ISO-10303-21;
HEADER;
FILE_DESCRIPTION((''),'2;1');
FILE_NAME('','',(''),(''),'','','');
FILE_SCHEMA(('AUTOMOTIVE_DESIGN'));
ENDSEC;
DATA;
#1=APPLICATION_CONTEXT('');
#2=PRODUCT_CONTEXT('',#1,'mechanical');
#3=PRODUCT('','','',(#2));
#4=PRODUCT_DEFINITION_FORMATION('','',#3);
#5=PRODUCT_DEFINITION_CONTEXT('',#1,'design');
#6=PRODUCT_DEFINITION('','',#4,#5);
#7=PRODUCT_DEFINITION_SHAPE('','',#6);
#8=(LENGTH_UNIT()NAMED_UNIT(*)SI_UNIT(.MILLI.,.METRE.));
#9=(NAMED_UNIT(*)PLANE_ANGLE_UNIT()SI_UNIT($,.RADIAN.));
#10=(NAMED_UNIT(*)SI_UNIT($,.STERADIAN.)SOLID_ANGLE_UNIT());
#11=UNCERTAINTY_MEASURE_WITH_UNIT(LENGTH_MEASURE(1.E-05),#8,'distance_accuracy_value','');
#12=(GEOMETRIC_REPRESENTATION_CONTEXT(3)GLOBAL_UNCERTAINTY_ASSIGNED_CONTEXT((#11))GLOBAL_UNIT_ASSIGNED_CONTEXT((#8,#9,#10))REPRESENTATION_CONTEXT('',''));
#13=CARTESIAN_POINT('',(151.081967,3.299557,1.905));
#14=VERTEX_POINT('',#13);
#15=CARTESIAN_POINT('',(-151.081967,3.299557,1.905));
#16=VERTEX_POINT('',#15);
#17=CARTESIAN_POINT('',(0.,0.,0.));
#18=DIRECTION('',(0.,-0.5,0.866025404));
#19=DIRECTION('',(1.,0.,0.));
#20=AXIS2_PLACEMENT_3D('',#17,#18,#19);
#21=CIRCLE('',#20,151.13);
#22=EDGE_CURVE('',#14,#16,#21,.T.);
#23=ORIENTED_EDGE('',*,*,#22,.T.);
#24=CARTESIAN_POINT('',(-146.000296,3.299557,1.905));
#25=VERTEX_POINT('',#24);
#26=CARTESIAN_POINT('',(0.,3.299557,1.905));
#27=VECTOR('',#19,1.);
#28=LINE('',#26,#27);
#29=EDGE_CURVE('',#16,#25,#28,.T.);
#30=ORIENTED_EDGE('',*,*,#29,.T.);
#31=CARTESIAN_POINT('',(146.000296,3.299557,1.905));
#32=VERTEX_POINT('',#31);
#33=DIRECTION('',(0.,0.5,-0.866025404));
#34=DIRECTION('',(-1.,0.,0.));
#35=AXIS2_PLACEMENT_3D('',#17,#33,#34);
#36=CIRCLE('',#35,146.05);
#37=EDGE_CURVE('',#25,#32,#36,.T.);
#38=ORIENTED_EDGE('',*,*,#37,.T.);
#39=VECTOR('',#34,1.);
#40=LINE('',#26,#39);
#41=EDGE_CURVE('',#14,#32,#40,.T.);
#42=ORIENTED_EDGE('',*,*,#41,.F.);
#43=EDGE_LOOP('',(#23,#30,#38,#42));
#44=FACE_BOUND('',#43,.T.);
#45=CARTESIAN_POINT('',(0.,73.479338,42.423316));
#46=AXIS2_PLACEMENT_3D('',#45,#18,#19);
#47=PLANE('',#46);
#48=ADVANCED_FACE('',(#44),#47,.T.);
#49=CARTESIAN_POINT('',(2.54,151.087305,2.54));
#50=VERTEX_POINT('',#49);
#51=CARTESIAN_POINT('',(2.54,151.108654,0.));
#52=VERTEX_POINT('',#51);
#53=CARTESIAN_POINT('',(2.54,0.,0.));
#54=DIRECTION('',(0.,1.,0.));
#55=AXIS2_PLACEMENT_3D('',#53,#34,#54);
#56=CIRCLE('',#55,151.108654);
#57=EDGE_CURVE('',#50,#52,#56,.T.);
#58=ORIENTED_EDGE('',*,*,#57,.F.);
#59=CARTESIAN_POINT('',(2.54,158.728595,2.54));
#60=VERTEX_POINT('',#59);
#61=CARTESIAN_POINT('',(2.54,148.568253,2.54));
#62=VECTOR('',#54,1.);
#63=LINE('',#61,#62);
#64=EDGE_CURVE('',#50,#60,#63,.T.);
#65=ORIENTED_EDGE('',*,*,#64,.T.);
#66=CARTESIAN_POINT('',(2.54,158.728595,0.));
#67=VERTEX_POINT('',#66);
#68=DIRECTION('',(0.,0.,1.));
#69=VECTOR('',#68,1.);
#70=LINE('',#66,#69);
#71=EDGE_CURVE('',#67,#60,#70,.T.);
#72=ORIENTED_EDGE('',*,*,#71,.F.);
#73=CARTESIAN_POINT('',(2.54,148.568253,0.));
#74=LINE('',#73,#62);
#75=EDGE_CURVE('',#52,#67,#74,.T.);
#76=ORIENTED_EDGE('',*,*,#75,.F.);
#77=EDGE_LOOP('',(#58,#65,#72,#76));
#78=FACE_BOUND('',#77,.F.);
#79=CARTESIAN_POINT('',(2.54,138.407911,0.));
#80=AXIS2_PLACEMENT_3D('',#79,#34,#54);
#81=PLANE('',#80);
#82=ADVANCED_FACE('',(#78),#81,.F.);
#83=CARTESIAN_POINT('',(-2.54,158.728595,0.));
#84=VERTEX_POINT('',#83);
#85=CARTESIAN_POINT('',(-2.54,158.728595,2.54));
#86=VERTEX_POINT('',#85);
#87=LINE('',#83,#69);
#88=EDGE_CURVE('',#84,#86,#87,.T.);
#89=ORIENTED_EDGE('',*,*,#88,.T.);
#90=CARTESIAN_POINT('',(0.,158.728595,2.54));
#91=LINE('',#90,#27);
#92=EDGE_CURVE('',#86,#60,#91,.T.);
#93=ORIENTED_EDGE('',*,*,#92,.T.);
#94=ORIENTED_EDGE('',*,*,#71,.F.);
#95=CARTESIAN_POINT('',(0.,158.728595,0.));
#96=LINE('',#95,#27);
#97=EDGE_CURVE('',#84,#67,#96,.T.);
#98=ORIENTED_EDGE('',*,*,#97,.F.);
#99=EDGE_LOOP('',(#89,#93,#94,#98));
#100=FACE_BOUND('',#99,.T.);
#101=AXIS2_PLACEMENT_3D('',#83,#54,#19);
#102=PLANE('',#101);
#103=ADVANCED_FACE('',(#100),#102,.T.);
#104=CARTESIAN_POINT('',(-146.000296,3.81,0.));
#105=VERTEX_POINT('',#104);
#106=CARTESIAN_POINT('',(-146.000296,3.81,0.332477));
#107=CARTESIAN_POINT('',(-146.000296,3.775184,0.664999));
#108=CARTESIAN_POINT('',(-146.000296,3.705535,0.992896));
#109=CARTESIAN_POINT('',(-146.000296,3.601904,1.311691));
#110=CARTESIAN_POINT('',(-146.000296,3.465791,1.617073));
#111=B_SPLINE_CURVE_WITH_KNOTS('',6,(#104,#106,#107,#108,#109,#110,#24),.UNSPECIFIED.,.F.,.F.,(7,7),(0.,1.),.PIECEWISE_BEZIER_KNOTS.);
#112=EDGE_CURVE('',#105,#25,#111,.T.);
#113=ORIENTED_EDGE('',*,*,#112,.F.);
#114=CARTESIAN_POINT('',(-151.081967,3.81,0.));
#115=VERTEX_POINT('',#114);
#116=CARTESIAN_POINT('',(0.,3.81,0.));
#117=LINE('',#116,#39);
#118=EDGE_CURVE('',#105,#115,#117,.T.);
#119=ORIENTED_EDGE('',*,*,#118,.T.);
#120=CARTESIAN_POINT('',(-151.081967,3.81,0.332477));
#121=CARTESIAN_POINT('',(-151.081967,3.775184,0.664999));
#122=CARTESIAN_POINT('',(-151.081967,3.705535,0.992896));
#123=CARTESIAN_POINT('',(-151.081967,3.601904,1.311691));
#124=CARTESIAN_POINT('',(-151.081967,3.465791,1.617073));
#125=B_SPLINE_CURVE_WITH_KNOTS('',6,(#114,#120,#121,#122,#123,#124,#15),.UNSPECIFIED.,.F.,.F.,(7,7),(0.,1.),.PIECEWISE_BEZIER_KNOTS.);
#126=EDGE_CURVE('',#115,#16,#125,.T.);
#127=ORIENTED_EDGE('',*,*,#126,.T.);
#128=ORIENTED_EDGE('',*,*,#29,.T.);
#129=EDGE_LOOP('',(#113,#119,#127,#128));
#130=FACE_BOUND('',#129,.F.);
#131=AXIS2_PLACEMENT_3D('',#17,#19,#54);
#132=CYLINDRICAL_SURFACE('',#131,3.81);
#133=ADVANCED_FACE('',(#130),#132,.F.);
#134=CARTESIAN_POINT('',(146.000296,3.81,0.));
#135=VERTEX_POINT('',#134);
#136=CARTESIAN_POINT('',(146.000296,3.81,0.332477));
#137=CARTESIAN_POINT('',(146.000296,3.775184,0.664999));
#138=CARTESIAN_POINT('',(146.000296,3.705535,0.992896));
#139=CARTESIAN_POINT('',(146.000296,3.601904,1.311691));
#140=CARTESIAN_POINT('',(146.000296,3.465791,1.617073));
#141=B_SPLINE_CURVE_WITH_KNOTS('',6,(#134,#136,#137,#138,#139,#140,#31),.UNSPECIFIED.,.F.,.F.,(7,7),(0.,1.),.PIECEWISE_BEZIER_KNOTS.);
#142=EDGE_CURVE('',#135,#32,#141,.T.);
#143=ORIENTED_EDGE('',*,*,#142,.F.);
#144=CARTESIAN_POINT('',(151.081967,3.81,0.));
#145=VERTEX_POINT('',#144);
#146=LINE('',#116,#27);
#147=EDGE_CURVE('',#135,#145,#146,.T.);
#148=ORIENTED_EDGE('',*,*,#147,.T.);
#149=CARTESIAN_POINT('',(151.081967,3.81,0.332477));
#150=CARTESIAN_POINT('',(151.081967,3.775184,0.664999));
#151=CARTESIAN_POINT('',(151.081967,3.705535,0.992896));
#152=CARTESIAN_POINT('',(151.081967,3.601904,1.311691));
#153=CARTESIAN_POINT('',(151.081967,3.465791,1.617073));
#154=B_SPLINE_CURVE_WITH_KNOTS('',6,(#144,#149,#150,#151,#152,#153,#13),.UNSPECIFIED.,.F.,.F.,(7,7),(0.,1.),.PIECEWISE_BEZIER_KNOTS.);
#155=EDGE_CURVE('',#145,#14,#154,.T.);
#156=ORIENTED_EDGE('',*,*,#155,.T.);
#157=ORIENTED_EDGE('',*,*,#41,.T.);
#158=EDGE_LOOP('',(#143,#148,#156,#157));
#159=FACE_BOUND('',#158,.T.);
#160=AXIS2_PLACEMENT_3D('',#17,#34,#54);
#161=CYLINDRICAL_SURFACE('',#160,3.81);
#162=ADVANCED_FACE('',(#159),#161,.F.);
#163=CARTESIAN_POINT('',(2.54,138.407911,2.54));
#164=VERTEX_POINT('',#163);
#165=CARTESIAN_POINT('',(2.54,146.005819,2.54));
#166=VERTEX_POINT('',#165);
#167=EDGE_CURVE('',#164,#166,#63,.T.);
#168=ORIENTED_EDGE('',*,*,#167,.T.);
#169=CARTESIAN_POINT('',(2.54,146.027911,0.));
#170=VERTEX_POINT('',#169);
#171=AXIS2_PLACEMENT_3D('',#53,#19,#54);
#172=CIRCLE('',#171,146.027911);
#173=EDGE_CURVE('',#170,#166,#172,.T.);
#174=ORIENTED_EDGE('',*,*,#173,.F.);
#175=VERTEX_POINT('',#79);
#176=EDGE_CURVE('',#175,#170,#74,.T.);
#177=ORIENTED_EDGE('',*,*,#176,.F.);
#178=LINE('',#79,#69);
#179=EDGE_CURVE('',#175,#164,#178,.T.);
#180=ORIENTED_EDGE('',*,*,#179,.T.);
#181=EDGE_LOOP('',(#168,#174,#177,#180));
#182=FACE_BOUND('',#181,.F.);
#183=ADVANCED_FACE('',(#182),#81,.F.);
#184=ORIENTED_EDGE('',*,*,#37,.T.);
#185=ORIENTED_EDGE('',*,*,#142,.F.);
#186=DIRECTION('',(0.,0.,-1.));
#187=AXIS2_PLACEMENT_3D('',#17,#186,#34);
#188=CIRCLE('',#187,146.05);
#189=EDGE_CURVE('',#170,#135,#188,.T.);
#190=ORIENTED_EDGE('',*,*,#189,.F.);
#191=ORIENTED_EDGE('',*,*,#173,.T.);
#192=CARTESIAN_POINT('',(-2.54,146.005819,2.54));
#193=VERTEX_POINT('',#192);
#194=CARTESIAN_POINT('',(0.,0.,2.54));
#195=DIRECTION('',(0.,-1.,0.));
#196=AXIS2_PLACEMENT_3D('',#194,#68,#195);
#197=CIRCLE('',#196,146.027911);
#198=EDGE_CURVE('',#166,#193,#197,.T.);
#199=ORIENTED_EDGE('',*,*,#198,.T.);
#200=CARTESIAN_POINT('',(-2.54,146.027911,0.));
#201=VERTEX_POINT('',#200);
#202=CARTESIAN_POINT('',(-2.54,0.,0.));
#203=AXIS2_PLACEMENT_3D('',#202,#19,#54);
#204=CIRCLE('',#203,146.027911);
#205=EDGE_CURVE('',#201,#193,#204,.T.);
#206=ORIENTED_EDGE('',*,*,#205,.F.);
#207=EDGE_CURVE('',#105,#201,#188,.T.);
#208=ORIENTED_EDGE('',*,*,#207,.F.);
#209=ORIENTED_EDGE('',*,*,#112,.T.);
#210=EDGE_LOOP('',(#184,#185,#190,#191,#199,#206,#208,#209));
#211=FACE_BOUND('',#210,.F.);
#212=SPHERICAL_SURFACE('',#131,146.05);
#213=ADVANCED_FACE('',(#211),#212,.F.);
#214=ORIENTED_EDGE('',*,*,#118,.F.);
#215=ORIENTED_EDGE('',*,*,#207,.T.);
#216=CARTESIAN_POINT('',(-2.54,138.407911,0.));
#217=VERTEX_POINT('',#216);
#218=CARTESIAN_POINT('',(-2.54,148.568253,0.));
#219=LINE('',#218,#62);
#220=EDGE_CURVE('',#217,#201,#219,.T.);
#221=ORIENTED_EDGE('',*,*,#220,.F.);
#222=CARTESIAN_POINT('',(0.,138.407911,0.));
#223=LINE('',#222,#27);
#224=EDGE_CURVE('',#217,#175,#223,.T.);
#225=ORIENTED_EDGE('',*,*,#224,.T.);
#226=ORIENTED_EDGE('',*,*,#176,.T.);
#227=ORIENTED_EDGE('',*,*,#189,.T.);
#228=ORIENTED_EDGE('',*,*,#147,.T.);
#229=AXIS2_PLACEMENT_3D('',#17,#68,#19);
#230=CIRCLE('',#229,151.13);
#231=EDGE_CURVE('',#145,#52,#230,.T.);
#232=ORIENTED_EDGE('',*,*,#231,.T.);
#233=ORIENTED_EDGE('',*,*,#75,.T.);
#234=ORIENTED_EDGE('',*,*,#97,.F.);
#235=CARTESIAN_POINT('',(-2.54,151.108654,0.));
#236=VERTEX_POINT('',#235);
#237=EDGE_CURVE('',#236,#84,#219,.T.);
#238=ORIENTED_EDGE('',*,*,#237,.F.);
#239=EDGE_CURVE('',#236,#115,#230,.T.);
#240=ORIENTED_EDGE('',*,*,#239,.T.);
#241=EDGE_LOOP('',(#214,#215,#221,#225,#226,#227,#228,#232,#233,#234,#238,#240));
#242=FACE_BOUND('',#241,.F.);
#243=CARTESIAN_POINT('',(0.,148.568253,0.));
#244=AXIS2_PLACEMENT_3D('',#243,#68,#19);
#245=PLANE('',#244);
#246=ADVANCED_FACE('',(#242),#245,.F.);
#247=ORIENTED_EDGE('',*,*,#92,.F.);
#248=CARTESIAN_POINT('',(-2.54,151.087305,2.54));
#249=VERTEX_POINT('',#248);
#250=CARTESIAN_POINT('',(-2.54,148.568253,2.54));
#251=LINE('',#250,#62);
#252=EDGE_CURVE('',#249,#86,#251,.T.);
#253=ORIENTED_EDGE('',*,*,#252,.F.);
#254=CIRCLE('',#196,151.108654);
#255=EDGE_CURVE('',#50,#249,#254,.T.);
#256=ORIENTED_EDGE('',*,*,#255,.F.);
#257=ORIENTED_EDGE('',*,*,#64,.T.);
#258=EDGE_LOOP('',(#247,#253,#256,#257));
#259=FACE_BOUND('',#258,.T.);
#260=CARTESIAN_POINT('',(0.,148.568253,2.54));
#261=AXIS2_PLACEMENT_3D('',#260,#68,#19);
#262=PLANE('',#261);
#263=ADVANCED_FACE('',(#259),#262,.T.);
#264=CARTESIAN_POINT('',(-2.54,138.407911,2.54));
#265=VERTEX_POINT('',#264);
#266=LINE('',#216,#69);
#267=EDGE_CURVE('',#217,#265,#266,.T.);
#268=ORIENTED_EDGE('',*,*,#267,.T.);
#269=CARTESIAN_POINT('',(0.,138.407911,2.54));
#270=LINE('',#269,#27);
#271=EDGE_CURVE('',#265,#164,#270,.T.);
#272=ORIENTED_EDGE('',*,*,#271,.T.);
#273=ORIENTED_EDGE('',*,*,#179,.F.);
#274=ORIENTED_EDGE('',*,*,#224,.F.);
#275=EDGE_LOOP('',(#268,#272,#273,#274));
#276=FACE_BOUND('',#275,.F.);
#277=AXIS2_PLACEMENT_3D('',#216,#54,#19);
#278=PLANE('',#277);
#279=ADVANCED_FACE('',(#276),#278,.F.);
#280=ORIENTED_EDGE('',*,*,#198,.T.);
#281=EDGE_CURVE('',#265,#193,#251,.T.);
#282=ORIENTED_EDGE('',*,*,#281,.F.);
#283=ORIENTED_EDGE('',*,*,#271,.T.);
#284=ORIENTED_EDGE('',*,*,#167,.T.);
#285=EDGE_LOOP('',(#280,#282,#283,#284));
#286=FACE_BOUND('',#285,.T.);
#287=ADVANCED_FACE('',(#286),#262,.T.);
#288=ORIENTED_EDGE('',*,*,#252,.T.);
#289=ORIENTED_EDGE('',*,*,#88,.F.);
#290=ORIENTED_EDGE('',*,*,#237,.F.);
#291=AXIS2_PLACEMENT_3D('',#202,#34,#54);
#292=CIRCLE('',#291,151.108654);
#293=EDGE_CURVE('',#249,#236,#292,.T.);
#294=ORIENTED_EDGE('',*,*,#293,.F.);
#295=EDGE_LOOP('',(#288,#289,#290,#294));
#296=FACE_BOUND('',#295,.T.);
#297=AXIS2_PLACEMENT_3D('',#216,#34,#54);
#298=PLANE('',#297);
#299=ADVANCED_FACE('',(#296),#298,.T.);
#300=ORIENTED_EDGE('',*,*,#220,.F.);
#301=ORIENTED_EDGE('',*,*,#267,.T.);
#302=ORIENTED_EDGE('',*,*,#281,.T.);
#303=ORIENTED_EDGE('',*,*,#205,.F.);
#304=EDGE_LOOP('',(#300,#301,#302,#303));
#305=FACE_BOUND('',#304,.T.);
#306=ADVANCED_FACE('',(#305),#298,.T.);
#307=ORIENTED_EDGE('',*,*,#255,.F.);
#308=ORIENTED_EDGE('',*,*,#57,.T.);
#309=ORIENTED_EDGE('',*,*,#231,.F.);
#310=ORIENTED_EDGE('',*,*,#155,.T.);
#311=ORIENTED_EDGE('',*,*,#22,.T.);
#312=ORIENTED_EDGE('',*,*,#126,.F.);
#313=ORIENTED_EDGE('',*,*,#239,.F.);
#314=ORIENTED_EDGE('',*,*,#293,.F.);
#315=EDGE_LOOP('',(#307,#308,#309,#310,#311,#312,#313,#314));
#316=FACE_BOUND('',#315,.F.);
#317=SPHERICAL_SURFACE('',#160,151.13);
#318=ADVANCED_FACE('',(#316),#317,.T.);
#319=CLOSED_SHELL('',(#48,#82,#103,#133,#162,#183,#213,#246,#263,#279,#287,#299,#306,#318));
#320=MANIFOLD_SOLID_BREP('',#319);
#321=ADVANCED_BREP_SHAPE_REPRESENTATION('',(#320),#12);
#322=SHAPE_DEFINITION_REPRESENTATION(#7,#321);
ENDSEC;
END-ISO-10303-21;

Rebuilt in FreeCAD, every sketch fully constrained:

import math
import FreeCAD as App
import Part
import Sketcher

V = App.Vector
Q = App.Units.Quantity


def add_polygon(sketch, points):
    """Adds a closed chain of lines whose ends are joined by coincident constraints."""
    first, n = sketch.GeometryCount, len(points)
    for a, b in zip(points, points[1:] + points[:1]):
        sketch.addGeometry(Part.LineSegment(App.Vector(*a, 0), App.Vector(*b, 0)), False)
    for i in range(n):
        sketch.addConstraint(Sketcher.Constraint("Coincident", first + i, 2, first + (i + 1) % n, 1))

doc = App.newDocument("Part")
body = doc.addObject("PartDesign::Body", "Body")

sketch1 = doc.addObject("Sketcher::SketchObject", "Sketch")
body.addObject(sketch1)
sketch1.AttachmentSupport = (doc.XY_Plane, [""])
sketch1.MapMode = "FlatFace"
sketch1.addGeometry([
    Part.LineSegment(V(-151, 0, 0), V(-146, 0, 0)),
    Part.ArcOfCircle(Part.Circle(V(0, 0, 0), V(0, 0, 1), 146), math.radians(0), math.radians(180)),
    Part.LineSegment(V(146, 0, 0), V(151, 0, 0)),
    Part.ArcOfCircle(Part.Circle(V(0, 0, 0), V(0, 0, 1), 151), math.radians(0), math.radians(180)),
], False)
sketch1.addConstraint([
    Sketcher.Constraint("Coincident", 0, 2, 1, 2),
    Sketcher.Constraint("Coincident", 1, 1, 2, 1),
    Sketcher.Constraint("Coincident", 2, 2, 3, 1),
    Sketcher.Constraint("Coincident", 3, 2, 0, 1),
    Sketcher.Constraint("Horizontal", 0),
    Sketcher.Constraint("Horizontal", 2),
    Sketcher.Constraint("Coincident", 1, 3, -1, 1),
    Sketcher.Constraint("Coincident", 3, 3, -1, 1),
    Sketcher.Constraint("PointOnObject", 0, 2, -1),
    Sketcher.Constraint("PointOnObject", 1, 1, -1),
    Sketcher.Constraint("Radius", 1, Q("5.75 in")),
    Sketcher.Constraint("Radius", 3, Q("5.95 in")),
])
revolution = doc.addObject("PartDesign::Revolution", "Revolution")
body.addObject(revolution)
revolution.Profile = sketch1
revolution.ReferenceAxis = (sketch1, ["H_Axis"])
revolution.Angle = 30

sketch2 = doc.addObject("Sketcher::SketchObject", "Sketch001")
body.addObject(sketch2)
sketch2.AttachmentSupport = (doc.YZ_Plane, [""])
sketch2.MapMode = "FlatFace"
sketch2.addGeometry(Part.Circle(V(0, 0, 0), V(0, 0, 1), 3.8), False)
sketch2.addConstraint([
    Sketcher.Constraint("Coincident", 0, 3, -1, 1),
    Sketcher.Constraint("Diameter", 0, Q("0.3 in")),
])
pocket1 = doc.addObject("PartDesign::Pocket", "Pocket")
body.addObject(pocket1)
pocket1.Profile = sketch2
pocket1.Type = "ThroughAll"
pocket1.Midplane = True

sketch3 = doc.addObject("Sketcher::SketchObject", "Sketch002")
body.addObject(sketch3)
sketch3.AttachmentSupport = (doc.XY_Plane, [""])
sketch3.MapMode = "FlatFace"
add_polygon(sketch3, [(-3, 159), (-3, 138), (3, 138), (3, 159)])
sketch3.addConstraint([
    Sketcher.Constraint("Vertical", 0),
    Sketcher.Constraint("Horizontal", 1),
    Sketcher.Constraint("Vertical", 2),
    Sketcher.Constraint("Horizontal", 3),
    Sketcher.Constraint("DistanceX", 1, 1, 1, 2, Q("0.2 in")),
    Sketcher.Constraint("DistanceX", 0, 2, -1, 1, Q("0.1 in")),
    Sketcher.Constraint("DistanceY", 0, 2, 0, 1, 20.320684),
    Sketcher.Constraint("DistanceY", -1, 1, 0, 2, 138.407911),
])
pad1 = doc.addObject("PartDesign::Pad", "Pad")
body.addObject(pad1)
pad1.Profile = sketch3
pad1.Length = Q("0.1 in")

doc.recompute()
